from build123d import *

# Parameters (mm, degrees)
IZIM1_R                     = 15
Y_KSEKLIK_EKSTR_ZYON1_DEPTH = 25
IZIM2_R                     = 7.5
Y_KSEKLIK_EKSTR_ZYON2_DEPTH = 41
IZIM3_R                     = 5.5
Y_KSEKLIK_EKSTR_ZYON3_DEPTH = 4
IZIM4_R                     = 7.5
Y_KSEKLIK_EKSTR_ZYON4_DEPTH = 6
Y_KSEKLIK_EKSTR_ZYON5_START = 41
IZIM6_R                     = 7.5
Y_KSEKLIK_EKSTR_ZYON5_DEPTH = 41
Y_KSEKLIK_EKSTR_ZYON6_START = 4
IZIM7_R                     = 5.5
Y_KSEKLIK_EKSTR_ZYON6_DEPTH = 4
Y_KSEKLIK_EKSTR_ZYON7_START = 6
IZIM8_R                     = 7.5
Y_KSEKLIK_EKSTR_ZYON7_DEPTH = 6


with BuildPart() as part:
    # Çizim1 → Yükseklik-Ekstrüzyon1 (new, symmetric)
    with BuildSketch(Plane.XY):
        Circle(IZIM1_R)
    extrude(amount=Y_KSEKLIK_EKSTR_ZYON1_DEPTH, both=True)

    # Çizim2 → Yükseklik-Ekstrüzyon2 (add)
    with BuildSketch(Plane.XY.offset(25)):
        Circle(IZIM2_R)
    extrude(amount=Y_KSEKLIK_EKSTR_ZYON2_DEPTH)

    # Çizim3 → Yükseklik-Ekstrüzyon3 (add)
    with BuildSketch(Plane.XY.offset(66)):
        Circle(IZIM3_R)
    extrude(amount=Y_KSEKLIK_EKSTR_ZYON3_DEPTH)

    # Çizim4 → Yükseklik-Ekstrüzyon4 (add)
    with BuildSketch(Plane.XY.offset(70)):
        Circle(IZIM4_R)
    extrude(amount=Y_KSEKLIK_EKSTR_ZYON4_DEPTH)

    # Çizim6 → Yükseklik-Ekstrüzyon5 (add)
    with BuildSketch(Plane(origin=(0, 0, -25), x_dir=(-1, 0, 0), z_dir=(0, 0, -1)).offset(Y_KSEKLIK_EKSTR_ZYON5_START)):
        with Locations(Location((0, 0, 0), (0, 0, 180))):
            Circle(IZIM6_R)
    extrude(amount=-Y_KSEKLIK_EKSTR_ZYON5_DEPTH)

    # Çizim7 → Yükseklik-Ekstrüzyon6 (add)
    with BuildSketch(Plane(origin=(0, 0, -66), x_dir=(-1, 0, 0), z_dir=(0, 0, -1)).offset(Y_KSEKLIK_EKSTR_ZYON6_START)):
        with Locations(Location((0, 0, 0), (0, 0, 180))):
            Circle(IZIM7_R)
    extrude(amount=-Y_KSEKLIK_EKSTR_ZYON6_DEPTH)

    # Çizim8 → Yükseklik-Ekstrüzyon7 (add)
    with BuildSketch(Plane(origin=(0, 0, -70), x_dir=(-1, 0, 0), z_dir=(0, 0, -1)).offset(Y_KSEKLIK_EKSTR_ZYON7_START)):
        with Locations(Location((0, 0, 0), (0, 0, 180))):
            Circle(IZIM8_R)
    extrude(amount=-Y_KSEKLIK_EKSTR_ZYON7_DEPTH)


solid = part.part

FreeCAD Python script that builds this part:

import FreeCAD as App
import Part
import Sketcher
from FreeCAD import Vector
Q = App.Units.Quantity

doc = App.newDocument("Part")
params = doc.addObject("Spreadsheet::Sheet", "Params")
for row, (alias, value) in enumerate([
    ("sketch1_diameter", "30 mm"),
    ("pad1_length", "50 mm"),
    ("sketch2_diameter", "15 mm"),
    ("pad2_length", "41 mm"),
    ("sketch3_diameter", "11 mm"),
    ("pad3_length", "4 mm"),
    ("sketch4_diameter", "15 mm"),
    ("pad4_length", "6 mm"),
    ("sketch5_diameter", "15 mm"),
    ("pad5_length", "41 mm"),
    ("sketch6_diameter", "11 mm"),
    ("pad6_length", "4 mm"),
    ("sketch7_diameter", "15 mm"),
    ("pad7_length", "6 mm"),
], start=1):
    params.set(f"A{row}", alias)
    params.set(f"B{row}", "=" + value)
    params.setAlias(f"B{row}", alias)

body = doc.addObject("PartDesign::Body", "Body")

sketch1 = doc.addObject("Sketcher::SketchObject", "Sketch")
body.addObject(sketch1)
sketch1.AttachmentSupport = (doc.XY_Plane, [""])
sketch1.MapMode = "FlatFace"
sketch1.addGeometry(Part.Circle(Vector(0, 0, 0), Vector(0, 0, 1), 15), False)
sketch1.addConstraint(Sketcher.Constraint("Coincident", 0, 3, -1, 1))
sketch1.addConstraint(Sketcher.Constraint("Diameter", 0, Q("30 mm")))
sketch1.setExpression("Constraints[1]", "Params.sketch1_diameter")
pad1 = doc.addObject("PartDesign::Pad", "Pad")
body.addObject(pad1)
pad1.Profile = sketch1
pad1.setExpression("Length", "Params.pad1_length")
pad1.Midplane = True

sketch2 = doc.addObject("Sketcher::SketchObject", "Sketch001")
body.addObject(sketch2)
sketch2.AttachmentSupport = (doc.XY_Plane, [""])
sketch2.MapMode = "FlatFace"
sketch2.AttachmentOffset = App.Placement(Vector(0, 0, 25), App.Rotation())
sketch2.addGeometry(Part.Circle(Vector(0, 0, 0), Vector(0, 0, 1), 8), False)
sketch2.addConstraint(Sketcher.Constraint("Coincident", 0, 3, -1, 1))
sketch2.addConstraint(Sketcher.Constraint("Diameter", 0, Q("15 mm")))
sketch2.setExpression("Constraints[1]", "Params.sketch2_diameter")
pad2 = doc.addObject("PartDesign::Pad", "Pad001")
body.addObject(pad2)
pad2.Profile = sketch2
pad2.setExpression("Length", "Params.pad2_length")

sketch3 = doc.addObject("Sketcher::SketchObject", "Sketch002")
body.addObject(sketch3)
sketch3.AttachmentSupport = (doc.XY_Plane, [""])
sketch3.MapMode = "FlatFace"
sketch3.AttachmentOffset = App.Placement(Vector(0, 0, 66), App.Rotation())
sketch3.addGeometry(Part.Circle(Vector(0, 0, 0), Vector(0, 0, 1), 6), False)
sketch3.addConstraint(Sketcher.Constraint("Coincident", 0, 3, -1, 1))
sketch3.addConstraint(Sketcher.Constraint("Diameter", 0, Q("11 mm")))
sketch3.setExpression("Constraints[1]", "Params.sketch3_diameter")
pad3 = doc.addObject("PartDesign::Pad", "Pad002")
body.addObject(pad3)
pad3.Profile = sketch3
pad3.setExpression("Length", "Params.pad3_length")

sketch4 = doc.addObject("Sketcher::SketchObject", "Sketch003")
body.addObject(sketch4)
sketch4.AttachmentSupport = (doc.XY_Plane, [""])
sketch4.MapMode = "FlatFace"
sketch4.AttachmentOffset = App.Placement(Vector(0, 0, 70), App.Rotation())
sketch4.addGeometry(Part.Circle(Vector(0, 0, 0), Vector(0, 0, 1), 8), False)
sketch4.addConstraint(Sketcher.Constraint("Coincident", 0, 3, -1, 1))
sketch4.addConstraint(Sketcher.Constraint("Diameter", 0, Q("15 mm")))
sketch4.setExpression("Constraints[1]", "Params.sketch4_diameter")
pad4 = doc.addObject("PartDesign::Pad", "Pad003")
body.addObject(pad4)
pad4.Profile = sketch4
pad4.setExpression("Length", "Params.pad4_length")

sketch5 = doc.addObject("Sketcher::SketchObject", "Sketch004")
body.addObject(sketch5)
sketch5.AttachmentSupport = (doc.XY_Plane, [""])
sketch5.MapMode = "FlatFace"
sketch5.AttachmentOffset = App.Placement(Vector(0, 0, -66), App.Rotation())
sketch5.addGeometry(Part.Circle(Vector(0, 0, 0), Vector(0, 0, 1), 8), False)
sketch5.addConstraint(Sketcher.Constraint("Coincident", 0, 3, -1, 1))
sketch5.addConstraint(Sketcher.Constraint("Diameter", 0, Q("15 mm")))
sketch5.setExpression("Constraints[1]", "Params.sketch5_diameter")
pad5 = doc.addObject("PartDesign::Pad", "Pad004")
body.addObject(pad5)
pad5.Profile = sketch5
pad5.setExpression("Length", "Params.pad5_length")

sketch6 = doc.addObject("Sketcher::SketchObject", "Sketch005")
body.addObject(sketch6)
sketch6.AttachmentSupport = (doc.XY_Plane, [""])
sketch6.MapMode = "FlatFace"
sketch6.AttachmentOffset = App.Placement(Vector(0, 0, -70), App.Rotation())
sketch6.addGeometry(Part.Circle(Vector(0, 0, 0), Vector(0, 0, 1), 6), False)
sketch6.addConstraint(Sketcher.Constraint("Coincident", 0, 3, -1, 1))
sketch6.addConstraint(Sketcher.Constraint("Diameter", 0, Q("11 mm")))
sketch6.setExpression("Constraints[1]", "Params.sketch6_diameter")
pad6 = doc.addObject("PartDesign::Pad", "Pad005")
body.addObject(pad6)
pad6.Profile = sketch6
pad6.setExpression("Length", "Params.pad6_length")

sketch7 = doc.addObject("Sketcher::SketchObject", "Sketch006")
body.addObject(sketch7)
sketch7.AttachmentSupport = (doc.XY_Plane, [""])
sketch7.MapMode = "FlatFace"
sketch7.AttachmentOffset = App.Placement(Vector(0, 0, -76), App.Rotation())
sketch7.addGeometry(Part.Circle(Vector(0, 0, 0), Vector(0, 0, 1), 8), False)
sketch7.addConstraint(Sketcher.Constraint("Coincident", 0, 3, -1, 1))
sketch7.addConstraint(Sketcher.Constraint("Diameter", 0, Q("15 mm")))
sketch7.setExpression("Constraints[1]", "Params.sketch7_diameter")
pad7 = doc.addObject("PartDesign::Pad", "Pad006")
body.addObject(pad7)
pad7.Profile = sketch7
pad7.setExpression("Length", "Params.pad7_length")

doc.recompute()
